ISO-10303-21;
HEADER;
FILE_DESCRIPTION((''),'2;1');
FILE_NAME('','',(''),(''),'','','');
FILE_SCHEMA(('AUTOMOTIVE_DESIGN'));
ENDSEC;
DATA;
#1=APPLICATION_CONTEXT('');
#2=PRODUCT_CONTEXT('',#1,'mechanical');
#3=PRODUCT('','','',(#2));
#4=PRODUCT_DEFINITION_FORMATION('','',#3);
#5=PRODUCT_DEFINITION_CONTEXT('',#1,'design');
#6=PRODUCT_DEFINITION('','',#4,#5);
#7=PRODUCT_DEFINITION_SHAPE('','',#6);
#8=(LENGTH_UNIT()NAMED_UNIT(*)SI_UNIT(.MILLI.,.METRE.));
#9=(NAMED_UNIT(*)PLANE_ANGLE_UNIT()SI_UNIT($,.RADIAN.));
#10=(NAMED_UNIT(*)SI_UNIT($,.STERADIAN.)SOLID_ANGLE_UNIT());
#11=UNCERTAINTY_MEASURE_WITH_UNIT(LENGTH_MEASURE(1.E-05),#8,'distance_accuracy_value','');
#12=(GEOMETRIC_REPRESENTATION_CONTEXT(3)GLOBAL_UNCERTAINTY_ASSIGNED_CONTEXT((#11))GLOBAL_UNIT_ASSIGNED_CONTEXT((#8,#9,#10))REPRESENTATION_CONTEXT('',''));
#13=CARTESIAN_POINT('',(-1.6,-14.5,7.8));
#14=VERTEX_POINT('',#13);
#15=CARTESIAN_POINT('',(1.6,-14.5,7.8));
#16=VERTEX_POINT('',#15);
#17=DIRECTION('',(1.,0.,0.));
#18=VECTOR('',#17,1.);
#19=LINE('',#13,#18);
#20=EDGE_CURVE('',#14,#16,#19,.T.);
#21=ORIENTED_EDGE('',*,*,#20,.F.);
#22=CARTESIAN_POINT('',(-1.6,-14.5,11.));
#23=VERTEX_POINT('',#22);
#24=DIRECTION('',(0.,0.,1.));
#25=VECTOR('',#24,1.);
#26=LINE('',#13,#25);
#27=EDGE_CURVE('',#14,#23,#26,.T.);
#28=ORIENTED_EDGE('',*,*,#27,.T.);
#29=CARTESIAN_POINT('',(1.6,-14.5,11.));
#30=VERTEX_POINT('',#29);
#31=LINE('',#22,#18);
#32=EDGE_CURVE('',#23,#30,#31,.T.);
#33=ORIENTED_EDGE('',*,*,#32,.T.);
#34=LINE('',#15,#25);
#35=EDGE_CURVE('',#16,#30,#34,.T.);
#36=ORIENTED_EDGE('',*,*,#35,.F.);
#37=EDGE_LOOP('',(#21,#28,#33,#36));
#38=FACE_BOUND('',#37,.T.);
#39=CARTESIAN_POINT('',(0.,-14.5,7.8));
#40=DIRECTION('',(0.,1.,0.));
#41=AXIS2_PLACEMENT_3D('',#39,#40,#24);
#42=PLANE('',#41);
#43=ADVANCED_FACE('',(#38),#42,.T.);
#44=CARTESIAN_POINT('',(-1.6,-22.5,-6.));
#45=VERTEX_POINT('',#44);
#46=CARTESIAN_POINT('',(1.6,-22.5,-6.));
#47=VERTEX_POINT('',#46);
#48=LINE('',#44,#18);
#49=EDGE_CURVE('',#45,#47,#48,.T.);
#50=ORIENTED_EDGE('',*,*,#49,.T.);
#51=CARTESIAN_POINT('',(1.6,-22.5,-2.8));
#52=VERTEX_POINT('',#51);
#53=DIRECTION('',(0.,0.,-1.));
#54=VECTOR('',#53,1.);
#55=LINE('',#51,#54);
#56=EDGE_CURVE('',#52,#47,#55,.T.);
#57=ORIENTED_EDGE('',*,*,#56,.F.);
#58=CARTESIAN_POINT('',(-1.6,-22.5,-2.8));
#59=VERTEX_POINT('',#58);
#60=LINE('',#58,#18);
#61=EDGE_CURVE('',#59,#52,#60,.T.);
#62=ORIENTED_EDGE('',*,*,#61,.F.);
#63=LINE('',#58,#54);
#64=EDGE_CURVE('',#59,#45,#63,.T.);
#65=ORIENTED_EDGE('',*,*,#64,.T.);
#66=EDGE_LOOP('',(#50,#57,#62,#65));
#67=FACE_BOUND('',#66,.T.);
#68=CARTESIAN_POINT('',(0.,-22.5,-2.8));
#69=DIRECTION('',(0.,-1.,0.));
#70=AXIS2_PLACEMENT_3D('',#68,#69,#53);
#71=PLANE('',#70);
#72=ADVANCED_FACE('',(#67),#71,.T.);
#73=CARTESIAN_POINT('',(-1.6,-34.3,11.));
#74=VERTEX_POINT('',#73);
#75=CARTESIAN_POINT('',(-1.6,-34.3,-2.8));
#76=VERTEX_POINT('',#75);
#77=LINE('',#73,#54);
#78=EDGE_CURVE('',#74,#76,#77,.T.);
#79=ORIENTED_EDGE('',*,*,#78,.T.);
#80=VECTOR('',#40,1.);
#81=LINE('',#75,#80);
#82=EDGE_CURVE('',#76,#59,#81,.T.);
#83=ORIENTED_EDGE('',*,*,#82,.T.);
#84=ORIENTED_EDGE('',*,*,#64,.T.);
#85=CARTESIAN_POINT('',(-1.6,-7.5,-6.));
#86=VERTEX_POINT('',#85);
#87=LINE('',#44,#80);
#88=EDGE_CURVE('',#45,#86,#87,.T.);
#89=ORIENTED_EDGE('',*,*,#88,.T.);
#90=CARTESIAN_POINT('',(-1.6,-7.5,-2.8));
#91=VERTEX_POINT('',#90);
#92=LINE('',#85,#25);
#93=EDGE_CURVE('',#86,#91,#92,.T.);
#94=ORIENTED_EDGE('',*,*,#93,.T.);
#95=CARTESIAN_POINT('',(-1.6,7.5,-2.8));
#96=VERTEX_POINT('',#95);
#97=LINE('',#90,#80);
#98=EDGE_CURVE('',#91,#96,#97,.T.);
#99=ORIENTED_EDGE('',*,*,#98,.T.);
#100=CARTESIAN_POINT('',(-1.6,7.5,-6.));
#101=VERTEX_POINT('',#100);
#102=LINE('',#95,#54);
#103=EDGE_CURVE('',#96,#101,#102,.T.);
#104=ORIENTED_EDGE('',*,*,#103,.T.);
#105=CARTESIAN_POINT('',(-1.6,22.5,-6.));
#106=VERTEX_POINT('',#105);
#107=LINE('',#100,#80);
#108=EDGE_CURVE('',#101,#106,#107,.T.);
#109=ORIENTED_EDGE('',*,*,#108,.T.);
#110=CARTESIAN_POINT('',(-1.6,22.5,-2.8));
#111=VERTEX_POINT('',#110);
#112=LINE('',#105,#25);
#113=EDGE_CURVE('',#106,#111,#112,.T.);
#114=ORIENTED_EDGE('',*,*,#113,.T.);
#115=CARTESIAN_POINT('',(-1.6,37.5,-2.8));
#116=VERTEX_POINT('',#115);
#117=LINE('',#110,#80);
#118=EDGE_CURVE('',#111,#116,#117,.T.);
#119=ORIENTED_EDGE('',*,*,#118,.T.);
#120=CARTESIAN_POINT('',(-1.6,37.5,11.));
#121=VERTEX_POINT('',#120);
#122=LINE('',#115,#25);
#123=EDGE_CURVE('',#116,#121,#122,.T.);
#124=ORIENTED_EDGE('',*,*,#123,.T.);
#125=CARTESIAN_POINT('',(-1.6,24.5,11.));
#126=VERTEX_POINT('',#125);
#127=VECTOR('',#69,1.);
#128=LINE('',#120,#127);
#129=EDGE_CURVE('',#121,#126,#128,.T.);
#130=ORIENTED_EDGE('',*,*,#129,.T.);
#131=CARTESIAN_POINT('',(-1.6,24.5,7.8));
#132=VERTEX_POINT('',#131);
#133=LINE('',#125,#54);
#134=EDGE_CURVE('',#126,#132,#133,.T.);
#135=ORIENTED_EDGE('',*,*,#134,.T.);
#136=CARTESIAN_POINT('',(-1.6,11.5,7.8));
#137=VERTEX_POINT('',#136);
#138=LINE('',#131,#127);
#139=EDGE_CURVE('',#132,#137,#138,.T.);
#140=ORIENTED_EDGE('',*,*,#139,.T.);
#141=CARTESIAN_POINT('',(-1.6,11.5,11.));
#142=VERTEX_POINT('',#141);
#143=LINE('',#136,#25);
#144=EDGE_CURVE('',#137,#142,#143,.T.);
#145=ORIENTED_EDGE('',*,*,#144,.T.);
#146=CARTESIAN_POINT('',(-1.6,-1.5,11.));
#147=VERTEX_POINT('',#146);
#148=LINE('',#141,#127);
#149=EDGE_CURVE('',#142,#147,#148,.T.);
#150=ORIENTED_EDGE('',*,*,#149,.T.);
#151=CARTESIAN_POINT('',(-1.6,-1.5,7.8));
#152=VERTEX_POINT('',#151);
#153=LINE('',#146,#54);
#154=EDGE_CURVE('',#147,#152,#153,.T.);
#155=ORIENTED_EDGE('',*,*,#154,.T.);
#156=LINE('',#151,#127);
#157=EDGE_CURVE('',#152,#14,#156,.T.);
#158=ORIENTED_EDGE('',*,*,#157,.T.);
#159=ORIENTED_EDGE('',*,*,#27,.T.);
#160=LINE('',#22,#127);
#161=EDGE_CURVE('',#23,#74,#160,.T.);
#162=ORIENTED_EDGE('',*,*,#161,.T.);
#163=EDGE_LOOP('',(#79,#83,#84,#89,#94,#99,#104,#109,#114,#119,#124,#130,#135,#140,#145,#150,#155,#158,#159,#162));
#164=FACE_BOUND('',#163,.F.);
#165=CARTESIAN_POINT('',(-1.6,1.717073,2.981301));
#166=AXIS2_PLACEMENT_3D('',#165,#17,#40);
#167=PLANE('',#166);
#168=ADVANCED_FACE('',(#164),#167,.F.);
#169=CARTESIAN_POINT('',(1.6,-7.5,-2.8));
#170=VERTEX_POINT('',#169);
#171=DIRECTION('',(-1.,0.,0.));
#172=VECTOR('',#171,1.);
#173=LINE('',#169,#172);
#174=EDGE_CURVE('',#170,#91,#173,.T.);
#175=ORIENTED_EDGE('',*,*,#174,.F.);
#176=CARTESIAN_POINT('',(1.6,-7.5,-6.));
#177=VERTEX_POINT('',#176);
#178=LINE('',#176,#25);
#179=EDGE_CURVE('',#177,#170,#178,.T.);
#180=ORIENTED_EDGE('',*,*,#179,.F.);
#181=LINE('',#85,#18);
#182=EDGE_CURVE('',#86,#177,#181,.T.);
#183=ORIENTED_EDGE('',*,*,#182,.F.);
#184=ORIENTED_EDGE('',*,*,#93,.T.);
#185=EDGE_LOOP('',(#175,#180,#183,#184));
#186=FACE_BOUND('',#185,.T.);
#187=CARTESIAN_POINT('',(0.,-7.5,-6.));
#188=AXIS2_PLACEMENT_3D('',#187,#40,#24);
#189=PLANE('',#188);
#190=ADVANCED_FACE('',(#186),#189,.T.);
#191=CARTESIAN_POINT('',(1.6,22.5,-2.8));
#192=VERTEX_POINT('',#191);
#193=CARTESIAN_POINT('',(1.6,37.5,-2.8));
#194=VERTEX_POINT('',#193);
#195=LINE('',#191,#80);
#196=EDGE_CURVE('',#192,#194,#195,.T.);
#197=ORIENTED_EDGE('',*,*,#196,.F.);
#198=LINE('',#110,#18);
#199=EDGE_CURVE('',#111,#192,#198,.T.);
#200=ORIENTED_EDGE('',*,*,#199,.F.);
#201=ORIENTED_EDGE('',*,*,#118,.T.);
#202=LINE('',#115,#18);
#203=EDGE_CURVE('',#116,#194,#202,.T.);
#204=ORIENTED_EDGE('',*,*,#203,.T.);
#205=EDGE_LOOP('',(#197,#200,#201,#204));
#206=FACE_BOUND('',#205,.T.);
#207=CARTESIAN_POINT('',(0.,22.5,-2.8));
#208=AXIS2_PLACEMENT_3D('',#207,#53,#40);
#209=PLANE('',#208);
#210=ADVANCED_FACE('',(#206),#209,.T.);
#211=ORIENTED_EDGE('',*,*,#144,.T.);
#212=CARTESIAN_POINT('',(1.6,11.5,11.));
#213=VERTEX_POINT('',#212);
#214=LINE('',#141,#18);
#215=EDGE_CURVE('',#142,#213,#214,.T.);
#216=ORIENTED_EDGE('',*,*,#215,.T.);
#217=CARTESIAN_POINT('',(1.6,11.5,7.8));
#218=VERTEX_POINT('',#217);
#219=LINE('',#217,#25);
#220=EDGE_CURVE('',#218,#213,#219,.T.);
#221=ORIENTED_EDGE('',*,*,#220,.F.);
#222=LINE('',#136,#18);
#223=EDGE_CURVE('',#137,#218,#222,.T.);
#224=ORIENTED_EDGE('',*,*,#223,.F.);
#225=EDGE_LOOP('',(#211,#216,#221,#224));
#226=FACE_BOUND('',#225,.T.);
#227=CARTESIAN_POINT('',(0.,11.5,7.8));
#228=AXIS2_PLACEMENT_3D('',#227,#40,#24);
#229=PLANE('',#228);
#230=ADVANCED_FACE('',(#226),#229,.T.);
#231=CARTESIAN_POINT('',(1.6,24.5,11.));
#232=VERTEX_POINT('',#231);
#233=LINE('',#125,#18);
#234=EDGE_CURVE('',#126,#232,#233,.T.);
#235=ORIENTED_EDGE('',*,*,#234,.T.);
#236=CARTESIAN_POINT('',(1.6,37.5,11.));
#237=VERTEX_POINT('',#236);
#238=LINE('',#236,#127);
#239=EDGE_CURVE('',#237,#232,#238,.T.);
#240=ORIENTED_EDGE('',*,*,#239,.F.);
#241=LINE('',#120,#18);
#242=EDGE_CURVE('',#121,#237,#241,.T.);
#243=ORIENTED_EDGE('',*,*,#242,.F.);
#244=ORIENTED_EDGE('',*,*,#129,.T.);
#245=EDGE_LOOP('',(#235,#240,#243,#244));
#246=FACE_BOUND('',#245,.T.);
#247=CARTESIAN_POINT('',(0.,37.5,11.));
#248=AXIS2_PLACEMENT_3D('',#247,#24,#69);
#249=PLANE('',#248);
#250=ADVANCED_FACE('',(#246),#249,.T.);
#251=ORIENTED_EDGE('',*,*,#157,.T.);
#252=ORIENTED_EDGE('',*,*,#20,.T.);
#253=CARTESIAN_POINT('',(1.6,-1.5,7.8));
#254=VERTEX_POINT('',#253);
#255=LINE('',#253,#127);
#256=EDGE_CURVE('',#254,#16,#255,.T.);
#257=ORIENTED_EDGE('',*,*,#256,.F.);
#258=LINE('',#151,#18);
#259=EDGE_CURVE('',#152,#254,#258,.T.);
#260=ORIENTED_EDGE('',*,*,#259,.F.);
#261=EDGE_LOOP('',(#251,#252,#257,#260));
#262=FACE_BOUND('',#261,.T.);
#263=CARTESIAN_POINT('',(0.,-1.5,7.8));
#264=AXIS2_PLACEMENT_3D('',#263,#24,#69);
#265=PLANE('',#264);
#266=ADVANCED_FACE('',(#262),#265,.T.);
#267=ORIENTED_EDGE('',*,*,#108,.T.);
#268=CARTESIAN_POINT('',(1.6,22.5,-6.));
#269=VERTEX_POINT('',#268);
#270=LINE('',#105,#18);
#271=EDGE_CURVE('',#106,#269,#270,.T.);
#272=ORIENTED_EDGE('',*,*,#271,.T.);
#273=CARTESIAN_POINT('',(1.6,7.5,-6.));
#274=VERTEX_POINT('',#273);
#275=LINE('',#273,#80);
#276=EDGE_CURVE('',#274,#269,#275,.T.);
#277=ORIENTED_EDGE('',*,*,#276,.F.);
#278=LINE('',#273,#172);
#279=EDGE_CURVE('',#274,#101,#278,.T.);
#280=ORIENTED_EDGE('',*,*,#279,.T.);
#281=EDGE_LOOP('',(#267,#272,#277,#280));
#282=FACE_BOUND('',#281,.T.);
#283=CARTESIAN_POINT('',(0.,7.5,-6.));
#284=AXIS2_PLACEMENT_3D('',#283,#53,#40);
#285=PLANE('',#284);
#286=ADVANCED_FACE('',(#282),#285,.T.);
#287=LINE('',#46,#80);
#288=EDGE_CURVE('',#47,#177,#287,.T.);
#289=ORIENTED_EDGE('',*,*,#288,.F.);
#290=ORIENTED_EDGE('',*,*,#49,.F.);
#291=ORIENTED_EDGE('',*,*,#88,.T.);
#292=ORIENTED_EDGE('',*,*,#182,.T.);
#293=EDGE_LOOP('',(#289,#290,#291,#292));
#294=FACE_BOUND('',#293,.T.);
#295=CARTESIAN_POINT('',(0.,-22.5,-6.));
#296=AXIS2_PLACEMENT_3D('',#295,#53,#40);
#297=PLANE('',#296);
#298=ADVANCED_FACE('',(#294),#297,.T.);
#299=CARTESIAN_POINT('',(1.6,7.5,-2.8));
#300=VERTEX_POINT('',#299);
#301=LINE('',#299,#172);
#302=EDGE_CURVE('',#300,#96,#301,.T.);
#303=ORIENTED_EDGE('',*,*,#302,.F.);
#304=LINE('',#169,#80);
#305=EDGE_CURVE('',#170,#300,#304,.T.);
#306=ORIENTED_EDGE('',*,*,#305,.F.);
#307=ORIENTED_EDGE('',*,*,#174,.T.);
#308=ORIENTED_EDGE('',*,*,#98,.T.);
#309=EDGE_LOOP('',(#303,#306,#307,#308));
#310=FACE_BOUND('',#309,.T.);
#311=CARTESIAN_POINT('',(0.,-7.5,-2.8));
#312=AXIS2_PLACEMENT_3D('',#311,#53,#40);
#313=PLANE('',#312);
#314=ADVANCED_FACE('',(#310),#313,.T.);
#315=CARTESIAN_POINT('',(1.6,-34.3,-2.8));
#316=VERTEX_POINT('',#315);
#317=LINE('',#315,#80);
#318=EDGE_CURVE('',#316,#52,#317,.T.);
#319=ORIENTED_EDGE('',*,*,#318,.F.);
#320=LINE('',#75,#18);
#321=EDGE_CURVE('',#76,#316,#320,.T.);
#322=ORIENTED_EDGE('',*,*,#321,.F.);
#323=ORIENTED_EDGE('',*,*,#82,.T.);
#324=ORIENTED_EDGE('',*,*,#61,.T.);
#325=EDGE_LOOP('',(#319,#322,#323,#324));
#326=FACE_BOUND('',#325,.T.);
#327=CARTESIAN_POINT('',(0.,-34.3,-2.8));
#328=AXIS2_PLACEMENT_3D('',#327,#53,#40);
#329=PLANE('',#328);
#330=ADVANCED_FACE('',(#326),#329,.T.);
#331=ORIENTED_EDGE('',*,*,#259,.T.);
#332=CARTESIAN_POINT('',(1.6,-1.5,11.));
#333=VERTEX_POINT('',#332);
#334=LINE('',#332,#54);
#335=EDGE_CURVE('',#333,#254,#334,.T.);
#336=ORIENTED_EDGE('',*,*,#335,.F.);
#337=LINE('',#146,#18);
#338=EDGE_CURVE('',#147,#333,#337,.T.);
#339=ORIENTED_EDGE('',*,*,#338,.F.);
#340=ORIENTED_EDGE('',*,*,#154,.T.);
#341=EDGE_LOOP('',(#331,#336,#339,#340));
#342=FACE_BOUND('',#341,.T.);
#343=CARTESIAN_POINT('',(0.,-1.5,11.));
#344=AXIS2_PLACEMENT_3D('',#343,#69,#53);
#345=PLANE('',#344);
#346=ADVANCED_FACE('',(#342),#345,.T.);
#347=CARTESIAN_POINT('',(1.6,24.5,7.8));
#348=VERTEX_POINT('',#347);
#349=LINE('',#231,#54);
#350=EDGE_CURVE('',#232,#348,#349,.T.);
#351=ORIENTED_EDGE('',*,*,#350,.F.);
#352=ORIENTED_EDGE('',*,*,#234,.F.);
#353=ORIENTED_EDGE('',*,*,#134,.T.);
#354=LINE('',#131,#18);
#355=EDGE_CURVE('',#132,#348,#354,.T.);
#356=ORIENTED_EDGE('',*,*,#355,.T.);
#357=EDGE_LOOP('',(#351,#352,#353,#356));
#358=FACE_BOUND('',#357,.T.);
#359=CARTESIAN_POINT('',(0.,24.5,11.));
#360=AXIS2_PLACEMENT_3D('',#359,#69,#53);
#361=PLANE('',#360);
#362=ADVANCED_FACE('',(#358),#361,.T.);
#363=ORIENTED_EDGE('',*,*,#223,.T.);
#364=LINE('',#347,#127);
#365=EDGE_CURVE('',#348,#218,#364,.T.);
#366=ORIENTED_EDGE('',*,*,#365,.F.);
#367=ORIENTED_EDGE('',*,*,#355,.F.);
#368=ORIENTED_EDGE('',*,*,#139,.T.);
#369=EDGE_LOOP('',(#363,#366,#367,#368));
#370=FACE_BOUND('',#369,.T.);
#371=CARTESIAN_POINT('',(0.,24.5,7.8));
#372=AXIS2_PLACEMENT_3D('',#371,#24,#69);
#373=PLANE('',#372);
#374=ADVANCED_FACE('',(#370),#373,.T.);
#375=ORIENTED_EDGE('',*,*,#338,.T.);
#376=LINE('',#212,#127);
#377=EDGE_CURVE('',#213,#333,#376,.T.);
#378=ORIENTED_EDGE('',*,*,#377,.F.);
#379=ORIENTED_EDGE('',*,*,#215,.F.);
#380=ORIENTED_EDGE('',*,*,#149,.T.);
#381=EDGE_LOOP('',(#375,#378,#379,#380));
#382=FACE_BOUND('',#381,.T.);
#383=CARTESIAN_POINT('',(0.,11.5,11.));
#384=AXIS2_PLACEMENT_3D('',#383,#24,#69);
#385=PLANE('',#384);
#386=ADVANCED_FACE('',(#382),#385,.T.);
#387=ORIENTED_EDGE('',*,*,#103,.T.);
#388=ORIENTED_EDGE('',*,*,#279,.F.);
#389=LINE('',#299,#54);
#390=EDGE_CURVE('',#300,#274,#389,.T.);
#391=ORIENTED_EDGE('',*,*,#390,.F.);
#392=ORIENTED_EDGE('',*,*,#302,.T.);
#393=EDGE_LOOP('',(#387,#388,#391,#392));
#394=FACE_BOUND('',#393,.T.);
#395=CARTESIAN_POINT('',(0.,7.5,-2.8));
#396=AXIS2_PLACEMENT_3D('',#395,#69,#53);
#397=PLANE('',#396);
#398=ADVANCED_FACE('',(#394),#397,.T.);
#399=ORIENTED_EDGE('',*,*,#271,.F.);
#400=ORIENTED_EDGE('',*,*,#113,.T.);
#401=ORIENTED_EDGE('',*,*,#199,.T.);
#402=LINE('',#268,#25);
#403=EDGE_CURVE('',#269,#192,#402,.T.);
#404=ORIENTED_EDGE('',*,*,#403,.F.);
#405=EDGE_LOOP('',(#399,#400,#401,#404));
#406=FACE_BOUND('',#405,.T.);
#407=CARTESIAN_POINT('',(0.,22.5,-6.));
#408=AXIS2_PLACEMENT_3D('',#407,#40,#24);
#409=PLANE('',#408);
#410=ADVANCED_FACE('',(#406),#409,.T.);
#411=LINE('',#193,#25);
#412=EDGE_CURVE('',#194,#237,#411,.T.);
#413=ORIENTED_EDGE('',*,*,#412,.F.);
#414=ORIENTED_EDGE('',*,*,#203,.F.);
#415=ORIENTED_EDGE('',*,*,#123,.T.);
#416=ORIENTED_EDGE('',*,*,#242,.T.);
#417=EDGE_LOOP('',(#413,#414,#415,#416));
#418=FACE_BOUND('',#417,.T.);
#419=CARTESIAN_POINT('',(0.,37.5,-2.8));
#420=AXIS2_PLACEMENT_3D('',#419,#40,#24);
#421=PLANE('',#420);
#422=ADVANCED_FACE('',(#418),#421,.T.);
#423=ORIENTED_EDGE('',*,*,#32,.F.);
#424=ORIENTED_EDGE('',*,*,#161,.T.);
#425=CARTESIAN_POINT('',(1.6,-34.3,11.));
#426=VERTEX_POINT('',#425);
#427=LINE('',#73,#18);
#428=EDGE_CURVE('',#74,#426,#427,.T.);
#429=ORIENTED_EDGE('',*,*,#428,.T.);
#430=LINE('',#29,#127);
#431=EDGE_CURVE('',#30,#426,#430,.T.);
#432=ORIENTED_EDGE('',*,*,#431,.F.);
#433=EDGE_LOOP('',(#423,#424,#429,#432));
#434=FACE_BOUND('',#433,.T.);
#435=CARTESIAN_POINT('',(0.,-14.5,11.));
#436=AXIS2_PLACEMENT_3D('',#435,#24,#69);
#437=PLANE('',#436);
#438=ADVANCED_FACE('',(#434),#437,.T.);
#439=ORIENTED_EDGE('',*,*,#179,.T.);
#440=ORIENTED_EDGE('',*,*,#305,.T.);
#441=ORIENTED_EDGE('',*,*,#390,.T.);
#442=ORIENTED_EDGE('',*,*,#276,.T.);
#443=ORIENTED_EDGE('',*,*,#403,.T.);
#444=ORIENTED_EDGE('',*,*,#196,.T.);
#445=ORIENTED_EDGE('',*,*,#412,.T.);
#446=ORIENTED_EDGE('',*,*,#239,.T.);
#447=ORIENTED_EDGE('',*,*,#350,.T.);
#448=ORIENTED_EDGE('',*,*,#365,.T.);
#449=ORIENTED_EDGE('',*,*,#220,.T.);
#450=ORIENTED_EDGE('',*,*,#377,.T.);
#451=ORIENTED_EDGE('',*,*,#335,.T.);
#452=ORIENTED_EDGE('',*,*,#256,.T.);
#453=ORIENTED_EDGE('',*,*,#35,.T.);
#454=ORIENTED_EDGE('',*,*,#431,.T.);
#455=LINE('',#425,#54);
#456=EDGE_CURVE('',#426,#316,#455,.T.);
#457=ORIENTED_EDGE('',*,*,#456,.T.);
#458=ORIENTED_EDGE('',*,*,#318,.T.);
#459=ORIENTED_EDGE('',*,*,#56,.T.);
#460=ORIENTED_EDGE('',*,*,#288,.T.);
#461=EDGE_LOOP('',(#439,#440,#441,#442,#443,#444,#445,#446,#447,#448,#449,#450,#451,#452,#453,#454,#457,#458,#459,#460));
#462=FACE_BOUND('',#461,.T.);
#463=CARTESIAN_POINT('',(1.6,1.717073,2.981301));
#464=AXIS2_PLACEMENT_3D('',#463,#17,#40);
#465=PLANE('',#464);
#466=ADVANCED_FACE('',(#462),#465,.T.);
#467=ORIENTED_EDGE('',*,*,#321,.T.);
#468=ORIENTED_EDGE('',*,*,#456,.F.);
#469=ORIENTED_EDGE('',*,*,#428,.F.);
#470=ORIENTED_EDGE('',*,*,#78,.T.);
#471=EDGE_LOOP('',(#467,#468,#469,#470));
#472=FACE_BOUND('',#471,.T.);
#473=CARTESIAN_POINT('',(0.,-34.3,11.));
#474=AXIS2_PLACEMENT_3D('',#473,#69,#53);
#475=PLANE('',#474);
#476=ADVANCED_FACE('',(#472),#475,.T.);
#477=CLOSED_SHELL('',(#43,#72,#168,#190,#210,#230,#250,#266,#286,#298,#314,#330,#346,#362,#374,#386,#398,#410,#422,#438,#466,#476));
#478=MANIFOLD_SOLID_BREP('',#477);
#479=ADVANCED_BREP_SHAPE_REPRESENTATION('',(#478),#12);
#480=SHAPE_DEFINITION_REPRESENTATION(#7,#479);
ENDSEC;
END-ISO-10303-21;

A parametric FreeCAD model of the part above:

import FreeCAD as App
import Part
import Sketcher
from FreeCAD import Vector
Q = App.Units.Quantity

doc = App.newDocument("Part")
body = doc.addObject("PartDesign::Body", "Body")

# Sketch on YZ plane
sketch1 = body.newObject("Sketcher::SketchObject", "Sketch")
sketch1.AttachmentSupport = (doc.getObject("YZ_Plane"), [""])
sketch1.MapMode = "FlatFace"
sketch1.addGeometry([
    Part.LineSegment(Vector(7.5, -6, 0), Vector(22.5, -6, 0)),  # 0
    Part.LineSegment(Vector(22.5, -6, 0), Vector(22.5, -2.8, 0)),  # 1
    Part.LineSegment(Vector(22.5, -2.8, 0), Vector(37.5, -2.8, 0)),  # 2
    Part.LineSegment(Vector(37.5, -2.8, 0), Vector(37.5, 11, 0)),  # 3
    Part.LineSegment(Vector(37.5, 11, 0), Vector(24.5, 11, 0)),  # 4
    Part.LineSegment(Vector(24.5, 11, 0), Vector(24.5, 7.8, 0)),  # 5
    Part.LineSegment(Vector(24.5, 7.8, 0), Vector(11.5, 7.8, 0)),  # 6
    Part.LineSegment(Vector(11.5, 7.8, 0), Vector(11.5, 11, 0)),  # 7
    Part.LineSegment(Vector(11.5, 11, 0), Vector(-1.5, 11, 0)),  # 8
    Part.LineSegment(Vector(-1.5, 11, 0), Vector(-1.5, 7.8, 0)),  # 9
    Part.LineSegment(Vector(-1.5, 7.8, 0), Vector(-14.5, 7.8, 0)),  # 10
    Part.LineSegment(Vector(-14.5, 7.8, 0), Vector(-14.5, 11, 0)),  # 11
    Part.LineSegment(Vector(-14.5, 11, 0), Vector(-34.3, 11, 0)),  # 12
    Part.LineSegment(Vector(-34.3, 11, 0), Vector(-34.3, -2.8, 0)),  # 13
    Part.LineSegment(Vector(-34.3, -2.8, 0), Vector(-22.5, -2.8, 0)),  # 14
    Part.LineSegment(Vector(-22.5, -2.8, 0), Vector(-22.5, -6, 0)),  # 15
    Part.LineSegment(Vector(-22.5, -6, 0), Vector(-7.5, -6, 0)),  # 16
    Part.LineSegment(Vector(-7.5, -6, 0), Vector(-7.5, -2.8, 0)),  # 17
    Part.LineSegment(Vector(-7.5, -2.8, 0), Vector(7.5, -2.8, 0)),  # 18
    Part.LineSegment(Vector(7.5, -2.8, 0), Vector(7.5, -6, 0)),  # 19
], False)
sketch1.addConstraint([
    Sketcher.Constraint("Coincident", 0, 2, 1, 1),
    Sketcher.Constraint("Coincident", 1, 2, 2, 1),
    Sketcher.Constraint("Coincident", 2, 2, 3, 1),
    Sketcher.Constraint("Coincident", 3, 2, 4, 1),
    Sketcher.Constraint("Coincident", 4, 2, 5, 1),
    Sketcher.Constraint("Coincident", 5, 2, 6, 1),
    Sketcher.Constraint("Coincident", 6, 2, 7, 1),
    Sketcher.Constraint("Coincident", 7, 2, 8, 1),
    Sketcher.Constraint("Coincident", 8, 2, 9, 1),
    Sketcher.Constraint("Coincident", 9, 2, 10, 1),
    Sketcher.Constraint("Coincident", 10, 2, 11, 1),
    Sketcher.Constraint("Coincident", 11, 2, 12, 1),
    Sketcher.Constraint("Coincident", 12, 2, 13, 1),
    Sketcher.Constraint("Coincident", 13, 2, 14, 1),
    Sketcher.Constraint("Coincident", 14, 2, 15, 1),
    Sketcher.Constraint("Coincident", 15, 2, 16, 1),
    Sketcher.Constraint("Coincident", 16, 2, 17, 1),
    Sketcher.Constraint("Coincident", 17, 2, 18, 1),
    Sketcher.Constraint("Coincident", 18, 2, 19, 1),
    Sketcher.Constraint("Coincident", 19, 2, 0, 1),
    Sketcher.Constraint("Horizontal", 0),
    Sketcher.Constraint("Vertical", 1),
    Sketcher.Constraint("Horizontal", 2),
    Sketcher.Constraint("Vertical", 3),
    Sketcher.Constraint("Horizontal", 4),
    Sketcher.Constraint("Vertical", 5),
    Sketcher.Constraint("Horizontal", 6),
    Sketcher.Constraint("Vertical", 7),
    Sketcher.Constraint("Horizontal", 8),
    Sketcher.Constraint("Vertical", 9),
    Sketcher.Constraint("Horizontal", 10),
    Sketcher.Constraint("Vertical", 11),
    Sketcher.Constraint("Horizontal", 12),
    Sketcher.Constraint("Vertical", 13),
    Sketcher.Constraint("Horizontal", 14),
    Sketcher.Constraint("Vertical", 15),
    Sketcher.Constraint("Horizontal", 16),
    Sketcher.Constraint("Vertical", 17),
    Sketcher.Constraint("Horizontal", 18),
    Sketcher.Constraint("Vertical", 19),
    Sketcher.Constraint("Symmetric", 1, 2, 14, 2, -2),
    Sketcher.Constraint("Symmetric", 16, 2, 19, 2, -2),
    Sketcher.Constraint("Horizontal", 4, 2, 7, 2),
    Sketcher.Constraint("Horizontal", 6, 2, 9, 2),
    Sketcher.Constraint("Horizontal", 8, 2, 11, 2),
    Sketcher.Constraint("Horizontal", 14, 2, 17, 2),
    Sketcher.Constraint("Equal", 0, 2),
    Sketcher.Constraint("Equal", 4, 6),
    Sketcher.Constraint("Equal", 6, 8),
    Sketcher.Constraint("Equal", 8, 10),
    Sketcher.Constraint("Equal", 16, 18),
    Sketcher.Constraint("Equal", 1, 5),
    Sketcher.Constraint("DistanceX", 0, 1, 0, 2, Q("15 mm")),
    Sketcher.Constraint("DistanceX", 4, 2, 4, 1, Q("13 mm")),
    Sketcher.Constraint("DistanceX", 12, 2, 12, 1, Q("19.8 mm")),
    Sketcher.Constraint("DistanceY", 1, 1, 1, 2, Q("3.2 mm")),
    Sketcher.Constraint("DistanceY", 3, 1, 3, 2, Q("13.8 mm")),
    Sketcher.Constraint("DistanceY", 0, 2, -1, 1, Q("6 mm")),
])
pad1 = body.newObject("PartDesign::Pad", "Pad")
pad1.Profile = sketch1
pad1.Length = 3.2
pad1.Midplane = True

doc.recompute()
